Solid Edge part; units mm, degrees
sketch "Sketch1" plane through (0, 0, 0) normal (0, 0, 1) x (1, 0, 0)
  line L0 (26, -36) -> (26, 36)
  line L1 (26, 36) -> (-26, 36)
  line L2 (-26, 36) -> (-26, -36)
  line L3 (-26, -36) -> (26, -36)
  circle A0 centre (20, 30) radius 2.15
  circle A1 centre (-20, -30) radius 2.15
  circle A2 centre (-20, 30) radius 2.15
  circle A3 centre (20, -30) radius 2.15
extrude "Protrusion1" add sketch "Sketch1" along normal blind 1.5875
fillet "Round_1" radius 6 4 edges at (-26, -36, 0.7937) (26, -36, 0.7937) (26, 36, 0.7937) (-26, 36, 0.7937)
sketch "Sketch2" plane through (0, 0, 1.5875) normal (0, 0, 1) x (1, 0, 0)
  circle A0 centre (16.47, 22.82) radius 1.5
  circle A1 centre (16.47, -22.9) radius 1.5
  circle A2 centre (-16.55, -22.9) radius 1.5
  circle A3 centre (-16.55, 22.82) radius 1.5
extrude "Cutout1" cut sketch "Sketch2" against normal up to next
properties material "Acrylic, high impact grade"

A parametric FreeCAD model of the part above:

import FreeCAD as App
import Part
import Sketcher

V = App.Vector
Q = App.Units.Quantity


def edges_at(feature, points):
    """Names of the edges that pass closest to the given points."""
    edges = feature.Shape.Edges
    near = lambda p: min(range(len(edges)), key=lambda i: edges[i].distToShape(Part.Vertex(*p))[0])
    return sorted({f"Edge{near(p) + 1}" for p in points})

doc = App.newDocument("Part")
body = doc.addObject("PartDesign::Body", "Body")

sketch1 = body.newObject("Sketcher::SketchObject", "Sketch")
sketch1.AttachmentSupport = (doc.getObject("XY_Plane"), [""])
sketch1.MapMode = "FlatFace"
sketch1.addGeometry([
    Part.LineSegment(V(-26, -36, 0), V(26, -36, 0)),
    Part.LineSegment(V(26, -36, 0), V(26, 36, 0)),
    Part.LineSegment(V(26, 36, 0), V(-26, 36, 0)),
    Part.LineSegment(V(-26, 36, 0), V(-26, -36, 0)),
    Part.Circle(V(-20, -30, 0), V(0, 0, 1), 2.1),
    Part.Circle(V(20, -30, 0), V(0, 0, 1), 2.1),
    Part.Circle(V(-20, 30, 0), V(0, 0, 1), 2.1),
    Part.Circle(V(20, 30, 0), V(0, 0, 1), 2.1),
], False)
sketch1.addConstraint([
    Sketcher.Constraint("Coincident", 0, 2, 1, 1),
    Sketcher.Constraint("Coincident", 1, 2, 2, 1),
    Sketcher.Constraint("Coincident", 2, 2, 3, 1),
    Sketcher.Constraint("Coincident", 3, 2, 0, 1),
    Sketcher.Constraint("Horizontal", 0),
    Sketcher.Constraint("Vertical", 1),
    Sketcher.Constraint("Horizontal", 2),
    Sketcher.Constraint("Vertical", 3),
    Sketcher.Constraint("Equal", 4, 5),
    Sketcher.Constraint("Equal", 5, 6),
    Sketcher.Constraint("Equal", 6, 7),
    Sketcher.Constraint("Symmetric", 5, 3, 6, 3, -1, 1),
    Sketcher.Constraint("Symmetric", 4, 3, 7, 3, -1, 1),
    Sketcher.Constraint("Symmetric", 0, 2, 2, 2, -1, 1),
    Sketcher.Constraint("Symmetric", 4, 3, 5, 3, -2),
    Sketcher.Constraint("Diameter", 4, Q("4.3 mm")),
    Sketcher.Constraint("DistanceX", 0, 1, 0, 2, Q("52 mm")),
    Sketcher.Constraint("DistanceY", 1, 1, 1, 2, Q("72 mm")),
    Sketcher.Constraint("DistanceX", 4, 3, -1, 1, Q("20 mm")),
    Sketcher.Constraint("DistanceY", 4, 3, -1, 1, Q("30 mm")),
])
pad1 = body.newObject("PartDesign::Pad", "Pad")
pad1.Profile = sketch1
pad1.Length = 1.5875
doc.recompute()

fillet = body.newObject("PartDesign::Fillet", "Fillet")
fillet.Base = (pad1, edges_at(pad1, [
    (-26, -36, 0.794),
    (26, -36, 0.794),
    (26, 36, 0.794),
    (-26, 36, 0.794),
]))
fillet.Radius = 6

sketch2 = body.newObject("Sketcher::SketchObject", "Sketch001")
sketch2.AttachmentSupport = (doc.getObject("XY_Plane"), [""])
sketch2.MapMode = "FlatFace"
sketch2.AttachmentOffset = App.Placement(V(0, 0, 1.5875), App.Rotation())
sketch2.addGeometry([
    Part.Circle(V(16.5, 22.8, 0), V(0, 0, 1), 1.5),
    Part.Circle(V(16.5, -22.9, 0), V(0, 0, 1), 1.5),
    Part.Circle(V(-16.6, -22.9, 0), V(0, 0, 1), 1.5),
    Part.Circle(V(-16.6, 22.8, 0), V(0, 0, 1), 1.5),
], False)
sketch2.addConstraint([
    Sketcher.Constraint("Equal", 0, 1),
    Sketcher.Constraint("Equal", 1, 2),
    Sketcher.Constraint("Equal", 2, 3),
    Sketcher.Constraint("Horizontal", 1, 3, 2, 3),
    Sketcher.Constraint("Horizontal", 0, 3, 3, 3),
    Sketcher.Constraint("Vertical", 0, 3, 1, 3),
    Sketcher.Constraint("Vertical", 2, 3, 3, 3),
    Sketcher.Constraint("Diameter", 0, Q("3 mm")),
    Sketcher.Constraint("DistanceY", 1, 3, -1, 1, Q("22.9 mm")),
    Sketcher.Constraint("DistanceX", -1, 1, 0, 3, Q("16.47 mm")),
    Sketcher.Constraint("DistanceY", -1, 1, 0, 3, Q("22.82 mm")),
    Sketcher.Constraint("DistanceX", 2, 3, -1, 1, Q("16.55 mm")),
])
pocket1 = body.newObject("PartDesign::Pocket", "Pocket")
pocket1.Profile = sketch2
pocket1.Type = "UpToFirst"

doc.recompute()
